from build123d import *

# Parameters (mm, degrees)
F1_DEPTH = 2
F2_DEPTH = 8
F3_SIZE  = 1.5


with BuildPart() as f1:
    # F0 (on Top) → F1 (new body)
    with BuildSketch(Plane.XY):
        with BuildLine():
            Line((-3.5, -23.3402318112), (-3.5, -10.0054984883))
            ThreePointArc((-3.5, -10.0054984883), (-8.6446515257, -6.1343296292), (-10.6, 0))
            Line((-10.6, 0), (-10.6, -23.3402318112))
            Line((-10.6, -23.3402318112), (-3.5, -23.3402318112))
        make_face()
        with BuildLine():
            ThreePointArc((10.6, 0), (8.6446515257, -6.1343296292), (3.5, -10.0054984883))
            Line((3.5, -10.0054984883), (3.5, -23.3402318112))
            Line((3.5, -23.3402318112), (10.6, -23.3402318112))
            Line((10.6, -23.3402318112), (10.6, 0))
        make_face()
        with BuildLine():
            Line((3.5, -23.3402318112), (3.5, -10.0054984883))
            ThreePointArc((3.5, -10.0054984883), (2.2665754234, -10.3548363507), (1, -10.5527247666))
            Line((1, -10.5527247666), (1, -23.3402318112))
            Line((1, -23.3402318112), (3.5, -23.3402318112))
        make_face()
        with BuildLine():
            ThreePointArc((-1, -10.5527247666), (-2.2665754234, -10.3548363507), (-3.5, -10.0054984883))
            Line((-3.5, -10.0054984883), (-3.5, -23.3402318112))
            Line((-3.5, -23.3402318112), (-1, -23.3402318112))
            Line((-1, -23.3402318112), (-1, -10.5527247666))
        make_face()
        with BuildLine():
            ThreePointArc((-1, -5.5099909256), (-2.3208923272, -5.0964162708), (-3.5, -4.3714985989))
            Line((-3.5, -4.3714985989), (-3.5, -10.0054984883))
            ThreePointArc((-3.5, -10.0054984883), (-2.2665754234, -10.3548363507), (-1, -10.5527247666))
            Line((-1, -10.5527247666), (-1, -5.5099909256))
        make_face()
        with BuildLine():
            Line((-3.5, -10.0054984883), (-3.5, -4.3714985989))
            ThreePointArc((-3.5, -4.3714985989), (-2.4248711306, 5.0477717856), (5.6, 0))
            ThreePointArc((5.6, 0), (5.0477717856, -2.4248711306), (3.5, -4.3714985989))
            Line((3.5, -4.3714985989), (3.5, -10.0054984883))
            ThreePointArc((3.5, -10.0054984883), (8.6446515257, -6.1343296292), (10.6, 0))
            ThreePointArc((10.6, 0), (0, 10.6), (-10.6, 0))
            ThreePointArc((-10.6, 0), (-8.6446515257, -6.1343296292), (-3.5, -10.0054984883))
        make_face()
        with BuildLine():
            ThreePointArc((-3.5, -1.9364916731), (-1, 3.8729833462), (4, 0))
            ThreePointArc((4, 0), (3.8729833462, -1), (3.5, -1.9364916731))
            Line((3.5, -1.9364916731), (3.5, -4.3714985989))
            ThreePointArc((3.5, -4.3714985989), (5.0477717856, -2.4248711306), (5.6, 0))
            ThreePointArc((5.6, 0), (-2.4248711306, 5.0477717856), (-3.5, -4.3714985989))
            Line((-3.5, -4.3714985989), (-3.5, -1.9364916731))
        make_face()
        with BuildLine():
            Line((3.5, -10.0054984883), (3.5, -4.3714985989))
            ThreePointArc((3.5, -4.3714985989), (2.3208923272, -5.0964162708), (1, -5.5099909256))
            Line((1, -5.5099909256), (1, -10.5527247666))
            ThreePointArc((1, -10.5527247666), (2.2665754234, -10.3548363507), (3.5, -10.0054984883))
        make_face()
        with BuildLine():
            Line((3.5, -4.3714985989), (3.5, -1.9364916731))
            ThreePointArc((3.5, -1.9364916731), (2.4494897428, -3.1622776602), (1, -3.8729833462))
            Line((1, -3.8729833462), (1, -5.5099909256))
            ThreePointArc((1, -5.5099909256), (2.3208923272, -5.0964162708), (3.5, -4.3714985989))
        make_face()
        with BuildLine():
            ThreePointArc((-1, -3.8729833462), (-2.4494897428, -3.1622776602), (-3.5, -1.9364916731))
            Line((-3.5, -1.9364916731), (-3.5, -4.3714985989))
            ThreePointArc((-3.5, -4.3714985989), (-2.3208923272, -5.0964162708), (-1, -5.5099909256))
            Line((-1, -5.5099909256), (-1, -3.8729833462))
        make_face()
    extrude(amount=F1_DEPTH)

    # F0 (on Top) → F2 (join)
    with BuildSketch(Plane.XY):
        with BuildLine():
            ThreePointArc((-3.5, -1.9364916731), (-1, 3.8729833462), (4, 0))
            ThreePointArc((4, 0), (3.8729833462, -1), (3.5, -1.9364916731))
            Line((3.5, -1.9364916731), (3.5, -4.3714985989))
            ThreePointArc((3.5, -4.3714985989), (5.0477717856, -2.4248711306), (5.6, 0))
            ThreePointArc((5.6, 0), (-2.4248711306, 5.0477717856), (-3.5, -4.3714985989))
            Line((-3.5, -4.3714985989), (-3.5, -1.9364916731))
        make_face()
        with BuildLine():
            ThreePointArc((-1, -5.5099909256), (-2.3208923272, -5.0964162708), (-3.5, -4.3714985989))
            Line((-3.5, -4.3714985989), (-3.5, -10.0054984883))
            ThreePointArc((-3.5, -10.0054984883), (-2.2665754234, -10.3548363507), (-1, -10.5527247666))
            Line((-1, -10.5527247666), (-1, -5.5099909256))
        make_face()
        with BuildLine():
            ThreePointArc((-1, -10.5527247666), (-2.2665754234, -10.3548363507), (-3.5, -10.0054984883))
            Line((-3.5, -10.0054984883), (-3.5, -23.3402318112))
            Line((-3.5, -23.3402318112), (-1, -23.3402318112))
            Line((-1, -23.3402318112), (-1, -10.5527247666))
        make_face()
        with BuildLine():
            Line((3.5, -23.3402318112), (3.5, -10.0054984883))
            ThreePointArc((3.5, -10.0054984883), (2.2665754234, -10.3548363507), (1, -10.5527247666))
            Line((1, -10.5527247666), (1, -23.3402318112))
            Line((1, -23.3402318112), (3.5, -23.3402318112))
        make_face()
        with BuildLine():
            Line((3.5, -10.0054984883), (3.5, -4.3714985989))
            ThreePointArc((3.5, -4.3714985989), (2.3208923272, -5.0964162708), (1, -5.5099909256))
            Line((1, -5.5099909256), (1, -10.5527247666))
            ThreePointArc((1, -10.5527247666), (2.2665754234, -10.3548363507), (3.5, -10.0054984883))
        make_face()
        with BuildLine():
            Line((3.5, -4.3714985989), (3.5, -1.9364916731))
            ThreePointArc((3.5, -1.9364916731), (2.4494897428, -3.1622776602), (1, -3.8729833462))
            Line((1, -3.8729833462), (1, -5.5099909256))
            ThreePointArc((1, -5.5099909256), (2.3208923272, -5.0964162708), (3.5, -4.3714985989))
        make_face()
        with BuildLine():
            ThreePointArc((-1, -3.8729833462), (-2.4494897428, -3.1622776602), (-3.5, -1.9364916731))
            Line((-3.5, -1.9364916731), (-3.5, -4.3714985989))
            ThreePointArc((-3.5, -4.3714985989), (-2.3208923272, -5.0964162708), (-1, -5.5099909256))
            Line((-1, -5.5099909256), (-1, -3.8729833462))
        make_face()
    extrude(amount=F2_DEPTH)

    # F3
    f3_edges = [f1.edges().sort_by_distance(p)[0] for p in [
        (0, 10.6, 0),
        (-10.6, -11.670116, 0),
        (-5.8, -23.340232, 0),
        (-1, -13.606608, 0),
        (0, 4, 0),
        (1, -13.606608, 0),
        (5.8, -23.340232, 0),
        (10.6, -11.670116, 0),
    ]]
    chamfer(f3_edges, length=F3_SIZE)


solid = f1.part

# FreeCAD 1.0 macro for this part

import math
import FreeCAD as App
import Part
import Sketcher
from FreeCAD import Vector
Q = App.Units.Quantity


def edges_at(feature, points):
    """Names of the edges that pass closest to the given points."""
    edges = feature.Shape.Edges
    near = lambda p: min(range(len(edges)), key=lambda i: edges[i].distToShape(Part.Vertex(*p))[0])
    return sorted({f"Edge{near(p) + 1}" for p in points})

doc = App.newDocument("Part")
body = doc.addObject("PartDesign::Body", "Body")

# Sketch on XY plane
sketch1 = doc.addObject("Sketcher::SketchObject", "Sketch")
body.addObject(sketch1)
sketch1.AttachmentSupport = (doc.XY_Plane, [""])
sketch1.MapMode = "FlatFace"
sketch1.addGeometry(Part.LineSegment(Vector(-10.6, 0, 0), Vector(-10.6, -23.3, 0)), False)
sketch1.addGeometry(Part.LineSegment(Vector(-10.6, -23.3, 0), Vector(-1, -23.3, 0)), False)
sketch1.addGeometry(Part.LineSegment(Vector(-1, -23.3, 0), Vector(-1, -3.9, 0)), False)
sketch1.addGeometry(Part.ArcOfCircle(Part.Circle(Vector(0, 0, 0), Vector(0, 0, 1), 4), math.radians(-151), math.radians(-104)), False)
sketch1.addGeometry(Part.ArcOfCircle(Part.Circle(Vector(0, 0, 0), Vector(0, 0, 1), 4), math.radians(0), math.radians(209)), False)
sketch1.addGeometry(Part.ArcOfCircle(Part.Circle(Vector(0, 0, 0), Vector(0, 0, 1), 4), math.radians(-29), math.radians(0)), False)
sketch1.addGeometry(Part.ArcOfCircle(Part.Circle(Vector(0, 0, 0), Vector(0, 0, 1), 4), math.radians(-76), math.radians(-29)), False)
sketch1.addGeometry(Part.LineSegment(Vector(1, -3.9, 0), Vector(1, -23.3, 0)), False)
sketch1.addGeometry(Part.LineSegment(Vector(1, -23.3, 0), Vector(10.6, -23.3, 0)), False)
sketch1.addGeometry(Part.LineSegment(Vector(10.6, -23.3, 0), Vector(10.6, 0, 0)), False)
sketch1.addGeometry(Part.ArcOfCircle(Part.Circle(Vector(0, 0, 0), Vector(0, 0, 1), 10.6), math.radians(0), math.radians(180)), False)
sketch1.addConstraint(Sketcher.Constraint("Coincident", 0, 2, 1, 1))
sketch1.addConstraint(Sketcher.Constraint("Coincident", 1, 2, 2, 1))
sketch1.addConstraint(Sketcher.Constraint("Coincident", 2, 2, 3, 2))
sketch1.addConstraint(Sketcher.Constraint("Tangent", 3, 1, 4, 2))
sketch1.addConstraint(Sketcher.Constraint("Tangent", 4, 1, 5, 2))
sketch1.addConstraint(Sketcher.Constraint("Tangent", 5, 1, 6, 2))
sketch1.addConstraint(Sketcher.Constraint("Coincident", 6, 1, 7, 1))
sketch1.addConstraint(Sketcher.Constraint("Coincident", 7, 2, 8, 1))
sketch1.addConstraint(Sketcher.Constraint("Coincident", 8, 2, 9, 1))
sketch1.addConstraint(Sketcher.Constraint("Tangent", 9, 2, 10, 1))
sketch1.addConstraint(Sketcher.Constraint("Tangent", 10, 2, 0, 1))
sketch1.addConstraint(Sketcher.Constraint("Vertical", 0))
sketch1.addConstraint(Sketcher.Constraint("Horizontal", 1))
sketch1.addConstraint(Sketcher.Constraint("Vertical", 2))
sketch1.addConstraint(Sketcher.Constraint("Vertical", 7))
sketch1.addConstraint(Sketcher.Constraint("Horizontal", 8))
sketch1.addConstraint(Sketcher.Constraint("Vertical", 9))
sketch1.addConstraint(Sketcher.Constraint("Coincident", 3, 3, -1, 1))
sketch1.addConstraint(Sketcher.Constraint("Coincident", 5, 3, -1, 1))
sketch1.addConstraint(Sketcher.Constraint("Coincident", 10, 3, -1, 1))
sketch1.addConstraint(Sketcher.Constraint("Equal", 5, 6))
sketch1.addConstraint(Sketcher.Constraint("Symmetric", 1, 2, 7, 2, -2))
sketch1.addConstraint(Sketcher.Constraint("PointOnObject", 4, 1, -1))
sketch1.addConstraint(Sketcher.Constraint("Horizontal", 3, 1, 5, 1))
sketch1.addConstraint(Sketcher.Constraint("Radius", 3, Q("4 mm")))
sketch1.addConstraint(Sketcher.Constraint("Radius", 10, Q("10.6 mm")))
sketch1.addConstraint(Sketcher.Constraint("DistanceX", 1, 1, 1, 2, Q("9.6 mm")))
sketch1.addConstraint(Sketcher.Constraint("DistanceX", 3, 1, -1, 1, Q("3.5 mm")))
sketch1.addConstraint(Sketcher.Constraint("DistanceY", 0, 2, 0, 1, Q("23.340232 mm")))
pad1 = doc.addObject("PartDesign::Pad", "Pad")
body.addObject(pad1)
pad1.Profile = sketch1
pad1.Length = 2

# Sketch on XY plane
sketch2 = doc.addObject("Sketcher::SketchObject", "Sketch001")
body.addObject(sketch2)
sketch2.AttachmentSupport = (doc.XY_Plane, [""])
sketch2.MapMode = "FlatFace"
sketch2.addGeometry(Part.ArcOfCircle(Part.Circle(Vector(0, 0, 0), Vector(0, 0, 1), 4), math.radians(0), math.radians(209)), False)
sketch2.addGeometry(Part.ArcOfCircle(Part.Circle(Vector(0, 0, 0), Vector(0, 0, 1), 4), math.radians(-29), math.radians(0)), False)
sketch2.addGeometry(Part.ArcOfCircle(Part.Circle(Vector(0, 0, 0), Vector(0, 0, 1), 4), math.radians(-76), math.radians(-29)), False)
sketch2.addGeometry(Part.LineSegment(Vector(1, -3.9, 0), Vector(1, -23.3, 0)), False)
sketch2.addGeometry(Part.LineSegment(Vector(1, -23.3, 0), Vector(3.5, -23.3, 0)), False)
sketch2.addGeometry(Part.LineSegment(Vector(3.5, -23.3, 0), Vector(3.5, -4.4, 0)), False)
sketch2.addGeometry(Part.ArcOfCircle(Part.Circle(Vector(0, 0, 0), Vector(0, 0, 1), 5.6), math.radians(-51), math.radians(0)), False)
sketch2.addGeometry(Part.ArcOfCircle(Part.Circle(Vector(0, 0, 0), Vector(0, 0, 1), 5.6), math.radians(0), math.radians(231)), False)
sketch2.addGeometry(Part.LineSegment(Vector(-3.5, -4.4, 0), Vector(-3.5, -23.3, 0)), False)
sketch2.addGeometry(Part.LineSegment(Vector(-3.5, -23.3, 0), Vector(-1, -23.3, 0)), False)
sketch2.addGeometry(Part.LineSegment(Vector(-1, -23.3, 0), Vector(-1, -3.9, 0)), False)
sketch2.addGeometry(Part.ArcOfCircle(Part.Circle(Vector(0, 0, 0), Vector(0, 0, 1), 4), math.radians(-151), math.radians(-104)), False)
sketch2.addConstraint(Sketcher.Constraint("Tangent", 0, 1, 1, 2))
sketch2.addConstraint(Sketcher.Constraint("Tangent", 1, 1, 2, 2))
sketch2.addConstraint(Sketcher.Constraint("Coincident", 2, 1, 3, 1))
sketch2.addConstraint(Sketcher.Constraint("Coincident", 3, 2, 4, 1))
sketch2.addConstraint(Sketcher.Constraint("Coincident", 4, 2, 5, 1))
sketch2.addConstraint(Sketcher.Constraint("Coincident", 5, 2, 6, 1))
sketch2.addConstraint(Sketcher.Constraint("Tangent", 6, 2, 7, 1))
sketch2.addConstraint(Sketcher.Constraint("Coincident", 7, 2, 8, 1))
sketch2.addConstraint(Sketcher.Constraint("Coincident", 8, 2, 9, 1))
sketch2.addConstraint(Sketcher.Constraint("Coincident", 9, 2, 10, 1))
sketch2.addConstraint(Sketcher.Constraint("Coincident", 10, 2, 11, 2))
sketch2.addConstraint(Sketcher.Constraint("Tangent", 11, 1, 0, 2))
sketch2.addConstraint(Sketcher.Constraint("Vertical", 3))
sketch2.addConstraint(Sketcher.Constraint("Horizontal", 4))
sketch2.addConstraint(Sketcher.Constraint("Vertical", 5))
sketch2.addConstraint(Sketcher.Constraint("Vertical", 8))
sketch2.addConstraint(Sketcher.Constraint("Horizontal", 9))
sketch2.addConstraint(Sketcher.Constraint("Vertical", 10))
sketch2.addConstraint(Sketcher.Constraint("Coincident", 0, 3, -1, 1))
sketch2.addConstraint(Sketcher.Constraint("Coincident", 2, 3, -1, 1))
sketch2.addConstraint(Sketcher.Constraint("Coincident", 6, 3, -1, 1))
sketch2.addConstraint(Sketcher.Constraint("Equal", 6, 7))
sketch2.addConstraint(Sketcher.Constraint("Equal", 2, 11))
sketch2.addConstraint(Sketcher.Constraint("Symmetric", 4, 2, 8, 2, -2))
sketch2.addConstraint(Sketcher.Constraint("PointOnObject", 0, 1, -1))
sketch2.addConstraint(Sketcher.Constraint("PointOnObject", 6, 2, -1))
sketch2.addConstraint(Sketcher.Constraint("Horizontal", 2, 1, 10, 2))
sketch2.addConstraint(Sketcher.Constraint("Horizontal", 1, 1, 11, 1))
sketch2.addConstraint(Sketcher.Constraint("Vertical", 1, 1, 4, 2))
sketch2.addConstraint(Sketcher.Constraint("Radius", 0, Q("4 mm")))
sketch2.addConstraint(Sketcher.Constraint("Radius", 6, Q("5.6 mm")))
sketch2.addConstraint(Sketcher.Constraint("DistanceX", 4, 1, 4, 2, Q("2.5 mm")))
sketch2.addConstraint(Sketcher.Constraint("DistanceX", -1, 1, 2, 1, Q("1 mm")))
sketch2.addConstraint(Sketcher.Constraint("DistanceY", 3, 2, 3, 1, Q("19.467248 mm")))
pad2 = doc.addObject("PartDesign::Pad", "Pad001")
body.addObject(pad2)
pad2.Profile = sketch2
pad2.Length = 8
doc.recompute()

chamfer = doc.addObject("PartDesign::Chamfer", "Chamfer")
body.addObject(chamfer)
chamfer.Base = (pad2, edges_at(pad2, [
    (0, 10.6, 0),
    (-10.6, -11.67, 0),
    (-5.8, -23.34, 0),
    (-1, -13.607, 0),
    (-1, 3.873, 0),
    (1, -13.607, 0),
    (5.8, -23.34, 0),
    (10.6, -11.67, 0),
]))
chamfer.Size = 1.5

doc.recompute()
